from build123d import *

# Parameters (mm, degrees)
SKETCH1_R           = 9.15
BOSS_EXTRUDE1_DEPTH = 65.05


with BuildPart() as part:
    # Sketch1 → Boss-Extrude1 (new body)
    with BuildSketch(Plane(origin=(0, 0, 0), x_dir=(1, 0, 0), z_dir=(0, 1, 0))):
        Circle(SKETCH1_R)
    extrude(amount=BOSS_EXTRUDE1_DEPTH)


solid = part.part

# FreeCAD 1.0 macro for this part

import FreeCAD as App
import Part
import Sketcher
from FreeCAD import Vector

doc = App.newDocument("Part")
params = doc.addObject("Spreadsheet::Sheet", "Params")
for row, (alias, value) in enumerate([
    ("sketch1_diameter", "18.3 mm"),
    ("pad1_length", "65.05 mm"),
], start=1):
    params.set(f"A{row}", alias)
    params.set(f"B{row}", "=" + value)
    params.setAlias(f"B{row}", alias)

body = doc.addObject("PartDesign::Body", "Body")

sketch1 = body.newObject("Sketcher::SketchObject", "Sketch")
sketch1.AttachmentSupport = (doc.getObject("XZ_Plane"), [""])
sketch1.MapMode = "FlatFace"
sketch1.addGeometry(Part.Circle(Vector(0, 0, 0), Vector(0, 0, 1), 9), False)
sketch1.addConstraint([
    Sketcher.Constraint("Coincident", 0, 3, -1, 1),
    Sketcher.Constraint("Diameter", 0, 18.3),
])
sketch1.setExpression("Constraints[1]", "Params.sketch1_diameter")
pad1 = body.newObject("PartDesign::Pad", "Pad")
pad1.Profile = sketch1
pad1.setExpression("Length", "Params.pad1_length")
pad1.Reversed = True

doc.recompute()
